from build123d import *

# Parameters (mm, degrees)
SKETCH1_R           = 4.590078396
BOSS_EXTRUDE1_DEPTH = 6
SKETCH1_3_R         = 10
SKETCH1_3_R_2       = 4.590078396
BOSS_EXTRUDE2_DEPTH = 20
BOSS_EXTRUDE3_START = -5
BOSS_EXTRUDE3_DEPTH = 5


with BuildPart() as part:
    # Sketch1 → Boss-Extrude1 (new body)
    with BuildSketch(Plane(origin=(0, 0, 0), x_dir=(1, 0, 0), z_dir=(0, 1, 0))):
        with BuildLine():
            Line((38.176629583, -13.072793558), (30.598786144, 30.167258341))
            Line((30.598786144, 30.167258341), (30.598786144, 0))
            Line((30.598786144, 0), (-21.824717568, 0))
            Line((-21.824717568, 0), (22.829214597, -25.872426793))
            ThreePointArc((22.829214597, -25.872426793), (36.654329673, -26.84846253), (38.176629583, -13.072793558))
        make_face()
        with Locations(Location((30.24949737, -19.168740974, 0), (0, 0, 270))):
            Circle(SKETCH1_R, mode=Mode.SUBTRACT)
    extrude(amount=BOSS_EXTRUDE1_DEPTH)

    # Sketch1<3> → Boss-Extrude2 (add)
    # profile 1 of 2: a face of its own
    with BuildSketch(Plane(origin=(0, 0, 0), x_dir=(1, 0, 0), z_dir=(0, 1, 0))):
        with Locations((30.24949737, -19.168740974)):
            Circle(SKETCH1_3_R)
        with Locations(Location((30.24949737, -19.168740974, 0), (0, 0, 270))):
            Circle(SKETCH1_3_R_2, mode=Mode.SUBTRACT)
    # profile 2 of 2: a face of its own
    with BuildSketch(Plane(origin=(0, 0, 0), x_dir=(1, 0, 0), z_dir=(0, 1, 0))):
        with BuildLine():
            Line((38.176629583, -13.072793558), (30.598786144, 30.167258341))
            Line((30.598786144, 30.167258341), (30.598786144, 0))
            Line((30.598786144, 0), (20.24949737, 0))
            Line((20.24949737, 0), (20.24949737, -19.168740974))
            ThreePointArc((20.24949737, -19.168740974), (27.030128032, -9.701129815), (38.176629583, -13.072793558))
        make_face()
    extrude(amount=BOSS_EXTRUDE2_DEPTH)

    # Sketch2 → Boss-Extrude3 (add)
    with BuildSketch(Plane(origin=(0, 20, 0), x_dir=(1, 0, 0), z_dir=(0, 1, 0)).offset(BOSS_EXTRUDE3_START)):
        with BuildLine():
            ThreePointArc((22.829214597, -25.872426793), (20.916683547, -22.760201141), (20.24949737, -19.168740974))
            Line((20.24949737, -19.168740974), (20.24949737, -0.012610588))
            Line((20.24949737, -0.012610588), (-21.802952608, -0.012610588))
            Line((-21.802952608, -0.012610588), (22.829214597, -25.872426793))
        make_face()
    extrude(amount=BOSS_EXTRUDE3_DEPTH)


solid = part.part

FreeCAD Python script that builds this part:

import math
import FreeCAD as App
import Part
import Sketcher
from FreeCAD import Vector

doc = App.newDocument("Part")
body = doc.addObject("PartDesign::Body", "Body")

# Sketch on XZ plane
sketch1 = body.newObject("Sketcher::SketchObject", "Sketch")
sketch1.AttachmentSupport = (doc.getObject("XZ_Plane"), [""])
sketch1.MapMode = "FlatFace"
sketch1.addGeometry(Part.LineSegment(Vector(38.2, 13.1, 0), Vector(30.6, -30.2, 0)), False)
sketch1.addGeometry(Part.LineSegment(Vector(30.6, -30.2, 0), Vector(30.6, 0, 0)), False)
sketch1.addGeometry(Part.LineSegment(Vector(30.6, 0, 0), Vector(-21.8, 0, 0)), False)
sketch1.addGeometry(Part.LineSegment(Vector(-21.8, 0, 0), Vector(22.8, 25.9, 0)), False)
sketch1.addGeometry(Part.ArcOfCircle(Part.Circle(Vector(30.2, 19.2, 0), Vector(0, 0, 1), 10), math.radians(-38), math.radians(138)), False)
sketch1.addGeometry(Part.Circle(Vector(30.2, 19.2, 0), Vector(0, 0, 1), 4.6), False)
sketch1.addConstraint(Sketcher.Constraint("Coincident", 0, 2, 1, 1))
sketch1.addConstraint(Sketcher.Constraint("Coincident", 1, 2, 2, 1))
sketch1.addConstraint(Sketcher.Constraint("Coincident", 2, 2, 3, 1))
sketch1.addConstraint(Sketcher.Constraint("Coincident", 3, 2, 4, 2))
sketch1.addConstraint(Sketcher.Constraint("Coincident", 4, 1, 0, 1))
sketch1.addConstraint(Sketcher.Constraint("Vertical", 1))
sketch1.addConstraint(Sketcher.Constraint("Horizontal", 2))
sketch1.addConstraint(Sketcher.Constraint("Coincident", 5, 3, 4, 3))
sketch1.addConstraint(Sketcher.Constraint("PointOnObject", 1, 2, -1))
sketch1.addConstraint(Sketcher.Constraint("Radius", 4, 10.0))
sketch1.addConstraint(Sketcher.Constraint("Diameter", 5, 9.180157))
sketch1.addConstraint(Sketcher.Constraint("DistanceY", 0, 2, 4, 3, 49.335999))
sketch1.addConstraint(Sketcher.Constraint("DistanceY", 1, 1, 1, 2, 30.167258))
sketch1.addConstraint(Sketcher.Constraint("Distance", 0, 43.899041))
sketch1.addConstraint(Sketcher.Constraint("DistanceX", 2, 2, 2, 1, 52.423504))
sketch1.addConstraint(Sketcher.Constraint("DistanceX", -1, 1, 4, 1, 38.17663))
sketch1.addConstraint(Sketcher.Constraint("DistanceX", 4, 3, 0, 2, 0.349289))
sketch1.addConstraint(Sketcher.Constraint("DistanceX", 3, 2, 1, 2, 7.769572))
pad1 = body.newObject("PartDesign::Pad", "Pad")
pad1.Profile = sketch1
pad1.Length = 6
pad1.Reversed = True

# Sketch on XZ plane
sketch2 = body.newObject("Sketcher::SketchObject", "Sketch001")
sketch2.AttachmentSupport = (doc.getObject("XZ_Plane"), [""])
sketch2.MapMode = "FlatFace"
sketch2.addGeometry(Part.LineSegment(Vector(38.2, 13.1, 0), Vector(30.6, -30.2, 0)), False)
sketch2.addGeometry(Part.LineSegment(Vector(30.6, -30.2, 0), Vector(30.6, 0, 0)), False)
sketch2.addGeometry(Part.LineSegment(Vector(30.6, 0, 0), Vector(20.2, 0, 0)), False)
sketch2.addGeometry(Part.LineSegment(Vector(20.2, 0, 0), Vector(20.2, 19.2, 0)), False)
sketch2.addGeometry(Part.ArcOfCircle(Part.Circle(Vector(30.2, 19.2, 0), Vector(0, 0, 1), 10), math.radians(-38), math.radians(180)), False)
sketch2.addGeometry(Part.Circle(Vector(30.2, 19.2, 0), Vector(0, 0, 1), 4.6), False)
sketch2.addConstraint(Sketcher.Constraint("Coincident", 0, 2, 1, 1))
sketch2.addConstraint(Sketcher.Constraint("Coincident", 1, 2, 2, 1))
sketch2.addConstraint(Sketcher.Constraint("Coincident", 2, 2, 3, 1))
sketch2.addConstraint(Sketcher.Constraint("Tangent", 3, 2, 4, 2))
sketch2.addConstraint(Sketcher.Constraint("Coincident", 4, 1, 0, 1))
sketch2.addConstraint(Sketcher.Constraint("Vertical", 1))
sketch2.addConstraint(Sketcher.Constraint("Horizontal", 2))
sketch2.addConstraint(Sketcher.Constraint("Vertical", 3))
sketch2.addConstraint(Sketcher.Constraint("Coincident", 5, 3, 4, 3))
sketch2.addConstraint(Sketcher.Constraint("PointOnObject", 1, 2, -1))
sketch2.addConstraint(Sketcher.Constraint("Radius", 4, 10.0))
sketch2.addConstraint(Sketcher.Constraint("Diameter", 5, 9.180157))
sketch2.addConstraint(Sketcher.Constraint("DistanceY", 0, 2, 4, 3, 49.335999))
sketch2.addConstraint(Sketcher.Constraint("DistanceX", 2, 2, 2, 1, 10.349289))
sketch2.addConstraint(Sketcher.Constraint("DistanceY", 1, 1, 1, 2, 30.167258))
sketch2.addConstraint(Sketcher.Constraint("Distance", 0, 43.899041))
sketch2.addConstraint(Sketcher.Constraint("DistanceX", -1, 1, 4, 1, 38.17663))
pad2 = body.newObject("PartDesign::Pad", "Pad001")
pad2.Profile = sketch2
pad2.Length = 20
pad2.Reversed = True

# Sketch on XZ plane
sketch3 = body.newObject("Sketcher::SketchObject", "Sketch002")
sketch3.AttachmentSupport = (doc.getObject("XZ_Plane"), [""])
sketch3.MapMode = "FlatFace"
sketch3.AttachmentOffset = App.Placement(Vector(0, 0, -15), App.Rotation())
sketch3.addGeometry(Part.ArcOfCircle(Part.Circle(Vector(30, 19, 0), Vector(0, 0, 1), 10), math.radians(138), math.radians(180)), False)
sketch3.addGeometry(Part.LineSegment(Vector(20, 19, 0), Vector(20, 0, 0)), False)
sketch3.addGeometry(Part.LineSegment(Vector(20, 0, 0), Vector(-22, 0, 0)), False)
sketch3.addGeometry(Part.LineSegment(Vector(-22, 0, 0), Vector(23, 26, 0)), False)
sketch3.addConstraint(Sketcher.Constraint("Tangent", 0, 2, 1, 1))
sketch3.addConstraint(Sketcher.Constraint("Coincident", 1, 2, 2, 1))
sketch3.addConstraint(Sketcher.Constraint("Coincident", 2, 2, 3, 1))
sketch3.addConstraint(Sketcher.Constraint("Coincident", 3, 2, 0, 1))
sketch3.addConstraint(Sketcher.Constraint("Vertical", 1))
sketch3.addConstraint(Sketcher.Constraint("Horizontal", 2))
sketch3.addConstraint(Sketcher.Constraint("Radius", 0, 10.0))
sketch3.addConstraint(Sketcher.Constraint("DistanceX", 2, 2, 2, 1, 42.05245))
sketch3.addConstraint(Sketcher.Constraint("DistanceY", 1, 2, 1, 1, 19.15613))
sketch3.addConstraint(Sketcher.Constraint("Distance", 3, 51.582559))
sketch3.addConstraint(Sketcher.Constraint("DistanceY", -1, 1, 0, 3, 19.168741))
sketch3.addConstraint(Sketcher.Constraint("DistanceX", -1, 1, 0, 3, 30.249497))
pad3 = body.newObject("PartDesign::Pad", "Pad002")
pad3.Profile = sketch3
pad3.Length = 5
pad3.Reversed = True

doc.recompute()
